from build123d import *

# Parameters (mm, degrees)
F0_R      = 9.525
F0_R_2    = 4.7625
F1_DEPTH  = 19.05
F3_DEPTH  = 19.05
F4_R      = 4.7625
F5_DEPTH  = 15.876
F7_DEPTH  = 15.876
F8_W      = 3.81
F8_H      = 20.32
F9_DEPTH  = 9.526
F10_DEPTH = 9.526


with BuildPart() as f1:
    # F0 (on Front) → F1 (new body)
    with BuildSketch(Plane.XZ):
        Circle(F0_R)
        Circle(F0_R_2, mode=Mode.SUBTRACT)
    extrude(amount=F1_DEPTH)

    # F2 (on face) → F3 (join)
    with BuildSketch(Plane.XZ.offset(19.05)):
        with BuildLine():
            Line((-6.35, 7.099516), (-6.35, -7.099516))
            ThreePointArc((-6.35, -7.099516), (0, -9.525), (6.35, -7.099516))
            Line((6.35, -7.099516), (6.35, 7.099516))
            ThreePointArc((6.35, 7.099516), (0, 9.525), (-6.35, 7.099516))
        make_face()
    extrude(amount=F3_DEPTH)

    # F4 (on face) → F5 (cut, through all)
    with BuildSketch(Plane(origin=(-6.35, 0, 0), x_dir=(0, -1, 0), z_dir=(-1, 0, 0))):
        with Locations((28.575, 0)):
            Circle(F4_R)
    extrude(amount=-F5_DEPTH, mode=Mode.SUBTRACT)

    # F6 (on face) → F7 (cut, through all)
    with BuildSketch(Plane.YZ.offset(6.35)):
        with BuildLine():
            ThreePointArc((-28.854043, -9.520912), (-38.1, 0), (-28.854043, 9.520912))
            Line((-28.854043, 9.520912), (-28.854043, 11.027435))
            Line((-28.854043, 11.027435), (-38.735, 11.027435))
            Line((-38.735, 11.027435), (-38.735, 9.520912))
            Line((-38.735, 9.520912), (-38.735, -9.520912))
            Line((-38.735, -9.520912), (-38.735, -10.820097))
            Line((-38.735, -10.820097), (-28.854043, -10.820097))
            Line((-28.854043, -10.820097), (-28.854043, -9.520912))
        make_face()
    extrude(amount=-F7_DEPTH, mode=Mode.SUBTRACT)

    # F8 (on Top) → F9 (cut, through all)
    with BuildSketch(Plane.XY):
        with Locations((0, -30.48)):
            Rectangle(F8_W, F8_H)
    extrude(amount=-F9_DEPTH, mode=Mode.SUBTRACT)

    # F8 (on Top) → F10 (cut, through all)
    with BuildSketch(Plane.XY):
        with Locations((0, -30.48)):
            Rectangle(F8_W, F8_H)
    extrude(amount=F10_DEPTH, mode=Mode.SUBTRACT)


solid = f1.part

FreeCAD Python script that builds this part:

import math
import FreeCAD as App
import Part
import Sketcher
Q = App.Units.Quantity

doc = App.newDocument("Part")
body = doc.addObject("PartDesign::Body", "Body")

# Sketch on XZ plane
sketch1 = body.newObject("Sketcher::SketchObject", "Sketch")
sketch1.AttachmentSupport = (doc.getObject("XZ_Plane"), [""])
sketch1.MapMode = "FlatFace"
sketch1.addGeometry([
    Part.Circle(App.Vector(0, 0, 0), App.Vector(0, 0, 1), 9.525),
    Part.Circle(App.Vector(0, 0, 0), App.Vector(0, 0, 1), 4.7625),
], False)
sketch1.addConstraint([
    Sketcher.Constraint("Coincident", 0, 3, -1, 1),
    Sketcher.Constraint("Coincident", 1, 3, -1, 1),
    Sketcher.Constraint("Diameter", 0, Q("0.75 in")),
    Sketcher.Constraint("Diameter", 1, Q("0.375 in")),
])
pad1 = body.newObject("PartDesign::Pad", "Pad")
pad1.Profile = sketch1
pad1.Length = Q("0.75 in")

# Sketch on XZ plane
sketch2 = body.newObject("Sketcher::SketchObject", "Sketch001")
sketch2.AttachmentSupport = (doc.getObject("XZ_Plane"), [""])
sketch2.MapMode = "FlatFace"
sketch2.AttachmentOffset = App.Placement(App.Vector(0, 0, 0.75 * 25.4), App.Rotation())
sketch2.addGeometry([
    Part.LineSegment(App.Vector(-6.35, 7.099516, 0), App.Vector(-6.35, -7.099516, 0)),
    Part.ArcOfCircle(Part.Circle(App.Vector(0, 0.000001, 0), App.Vector(0, 0, 1), 9.525001), math.radians(-131.810312), math.radians(-48.189688)),
    Part.LineSegment(App.Vector(6.35, -7.099516, 0), App.Vector(6.35, 7.099516, 0)),
    Part.ArcOfCircle(Part.Circle(App.Vector(0, -0.000001, 0), App.Vector(0, 0, 1), 9.525001), math.radians(48.189688), math.radians(131.810312)),
], False)
sketch2.addConstraint([
    Sketcher.Constraint("Coincident", 0, 2, 1, 1),
    Sketcher.Constraint("Coincident", 1, 2, 2, 1),
    Sketcher.Constraint("Coincident", 2, 2, 3, 1),
    Sketcher.Constraint("Coincident", 3, 2, 0, 1),
    Sketcher.Constraint("Vertical", 0),
    Sketcher.Constraint("Vertical", 2),
    Sketcher.Constraint("Coincident", 1, 3, -1, 1),
    Sketcher.Constraint("Coincident", 3, 3, -1, 1),
    Sketcher.Constraint("Equal", 1, 3),
    Sketcher.Constraint("Horizontal", 0, 2, 1, 2),
    Sketcher.Constraint("Radius", 1, Q("0.375 in")),
    Sketcher.Constraint("DistanceX", 0, 2, 1, 2, Q("0.5 in")),
])
pad2 = body.newObject("PartDesign::Pad", "Pad001")
pad2.Profile = sketch2
pad2.Length = Q("0.75 in")

# Sketch on YZ plane
sketch3 = body.newObject("Sketcher::SketchObject", "Sketch002")
sketch3.AttachmentSupport = (doc.getObject("YZ_Plane"), [""])
sketch3.MapMode = "FlatFace"
sketch3.AttachmentOffset = App.Placement(App.Vector(0, 0, -0.25 * 25.4), App.Rotation())
sketch3.addGeometry(Part.Circle(App.Vector(-28.575, 0, 0), App.Vector(0, 0, 1), 4.7625), False)
sketch3.addConstraint([
    Sketcher.Constraint("PointOnObject", 0, 3, -1),
    Sketcher.Constraint("Diameter", 0, Q("0.375 in")),
    Sketcher.Constraint("DistanceX", 0, 3, -1, 1, Q("1.125 in")),
])
pocket1 = body.newObject("PartDesign::Pocket", "Pocket")
pocket1.Profile = sketch3
pocket1.Type = "ThroughAll"
pocket1.Reversed = True

# Sketch on YZ plane
sketch4 = body.newObject("Sketcher::SketchObject", "Sketch003")
sketch4.AttachmentSupport = (doc.getObject("YZ_Plane"), [""])
sketch4.MapMode = "FlatFace"
sketch4.AttachmentOffset = App.Placement(App.Vector(0, 0, 0.25 * 25.4), App.Rotation())
sketch4.addGeometry([
    Part.ArcOfCircle(Part.Circle(App.Vector(-28.575, 0, 0), App.Vector(0, 0, 1), 9.525), math.radians(91.678771), math.radians(268.321229)),  # 0
    Part.LineSegment(App.Vector(-28.854043, 9.520912, 0), App.Vector(-28.854043, 11.027435, 0)),  # 1
    Part.LineSegment(App.Vector(-28.854043, 11.027435, 0), App.Vector(-38.735, 11.027435, 0)),  # 2
    Part.LineSegment(App.Vector(-38.735, 11.027435, 0), App.Vector(-38.735, -10.820097, 0)),  # 3
    Part.LineSegment(App.Vector(-38.735, -10.820097, 0), App.Vector(-28.854043, -10.820097, 0)),  # 4
    Part.LineSegment(App.Vector(-28.854043, -10.820097, 0), App.Vector(-28.854043, -9.520912, 0)),  # 5
], False)
sketch4.addConstraint([
    Sketcher.Constraint("Coincident", 0, 1, 1, 1),
    Sketcher.Constraint("Coincident", 1, 2, 2, 1),
    Sketcher.Constraint("Coincident", 2, 2, 3, 1),
    Sketcher.Constraint("Coincident", 3, 2, 4, 1),
    Sketcher.Constraint("Coincident", 4, 2, 5, 1),
    Sketcher.Constraint("Coincident", 5, 2, 0, 2),
    Sketcher.Constraint("Vertical", 1),
    Sketcher.Constraint("Horizontal", 2),
    Sketcher.Constraint("Vertical", 3),
    Sketcher.Constraint("Horizontal", 4),
    Sketcher.Constraint("Vertical", 5),
    Sketcher.Constraint("Symmetric", 0, 1, 5, 2, -1),
    Sketcher.Constraint("Radius", 0, Q("0.375 in")),
    Sketcher.Constraint("DistanceX", 2, 2, 0, 3, Q("0.4 in")),
    Sketcher.Constraint("DistanceX", 0, 3, -1, 1, Q("1.125 in")),
    Sketcher.Constraint("DistanceX", 2, 2, 2, 1, Q("9.880957 mm")),
    Sketcher.Constraint("DistanceY", 1, 1, 1, 2, Q("1.506523 mm")),
    Sketcher.Constraint("DistanceY", 3, 2, 3, 1, Q("21.847532 mm")),
])
pocket2 = body.newObject("PartDesign::Pocket", "Pocket001")
pocket2.Profile = sketch4
pocket2.Type = "ThroughAll"

# Sketch on XY plane
sketch5 = body.newObject("Sketcher::SketchObject", "Sketch004")
sketch5.AttachmentSupport = (doc.getObject("XY_Plane"), [""])
sketch5.MapMode = "FlatFace"
sketch5.addGeometry([
    Part.LineSegment(App.Vector(-1.905, -20.32, 0), App.Vector(-1.905, -40.64, 0)),
    Part.LineSegment(App.Vector(-1.905, -40.64, 0), App.Vector(1.905, -40.64, 0)),
    Part.LineSegment(App.Vector(1.905, -40.64, 0), App.Vector(1.905, -20.32, 0)),
    Part.LineSegment(App.Vector(1.905, -20.32, 0), App.Vector(-1.905, -20.32, 0)),
], False)
sketch5.addConstraint([
    Sketcher.Constraint("Coincident", 0, 2, 1, 1),
    Sketcher.Constraint("Coincident", 1, 2, 2, 1),
    Sketcher.Constraint("Coincident", 2, 2, 3, 1),
    Sketcher.Constraint("Coincident", 3, 2, 0, 1),
    Sketcher.Constraint("Vertical", 0),
    Sketcher.Constraint("Horizontal", 1),
    Sketcher.Constraint("Vertical", 2),
    Sketcher.Constraint("Horizontal", 3),
    Sketcher.Constraint("DistanceY", 0, 2, 0, 1, Q("0.8 in")),
    Sketcher.Constraint("DistanceX", 1, 1, 1, 2, Q("0.15 in")),
    Sketcher.Constraint("DistanceY", 0, 2, -1, 1, Q("1.6 in")),
    Sketcher.Constraint("DistanceX", 0, 2, -1, 1, Q("0.075 in")),
])
pocket3 = body.newObject("PartDesign::Pocket", "Pocket002")
pocket3.Profile = sketch5
pocket3.Type = "ThroughAll"

# Sketch on XY plane
sketch6 = body.newObject("Sketcher::SketchObject", "Sketch005")
sketch6.AttachmentSupport = (doc.getObject("XY_Plane"), [""])
sketch6.MapMode = "FlatFace"
sketch6.addGeometry([
    Part.LineSegment(App.Vector(-1.905, -20.32, 0), App.Vector(-1.905, -40.64, 0)),
    Part.LineSegment(App.Vector(-1.905, -40.64, 0), App.Vector(1.905, -40.64, 0)),
    Part.LineSegment(App.Vector(1.905, -40.64, 0), App.Vector(1.905, -20.32, 0)),
    Part.LineSegment(App.Vector(1.905, -20.32, 0), App.Vector(-1.905, -20.32, 0)),
], False)
sketch6.addConstraint([
    Sketcher.Constraint("Coincident", 0, 2, 1, 1),
    Sketcher.Constraint("Coincident", 1, 2, 2, 1),
    Sketcher.Constraint("Coincident", 2, 2, 3, 1),
    Sketcher.Constraint("Coincident", 3, 2, 0, 1),
    Sketcher.Constraint("Vertical", 0),
    Sketcher.Constraint("Horizontal", 1),
    Sketcher.Constraint("Vertical", 2),
    Sketcher.Constraint("Horizontal", 3),
    Sketcher.Constraint("DistanceY", 0, 2, 0, 1, Q("0.8 in")),
    Sketcher.Constraint("DistanceX", 1, 1, 1, 2, Q("0.15 in")),
    Sketcher.Constraint("DistanceY", 0, 2, -1, 1, Q("1.6 in")),
    Sketcher.Constraint("DistanceX", 0, 2, -1, 1, Q("0.075 in")),
])
pocket4 = body.newObject("PartDesign::Pocket", "Pocket003")
pocket4.Profile = sketch6
pocket4.Type = "ThroughAll"
pocket4.Reversed = True

doc.recompute()
